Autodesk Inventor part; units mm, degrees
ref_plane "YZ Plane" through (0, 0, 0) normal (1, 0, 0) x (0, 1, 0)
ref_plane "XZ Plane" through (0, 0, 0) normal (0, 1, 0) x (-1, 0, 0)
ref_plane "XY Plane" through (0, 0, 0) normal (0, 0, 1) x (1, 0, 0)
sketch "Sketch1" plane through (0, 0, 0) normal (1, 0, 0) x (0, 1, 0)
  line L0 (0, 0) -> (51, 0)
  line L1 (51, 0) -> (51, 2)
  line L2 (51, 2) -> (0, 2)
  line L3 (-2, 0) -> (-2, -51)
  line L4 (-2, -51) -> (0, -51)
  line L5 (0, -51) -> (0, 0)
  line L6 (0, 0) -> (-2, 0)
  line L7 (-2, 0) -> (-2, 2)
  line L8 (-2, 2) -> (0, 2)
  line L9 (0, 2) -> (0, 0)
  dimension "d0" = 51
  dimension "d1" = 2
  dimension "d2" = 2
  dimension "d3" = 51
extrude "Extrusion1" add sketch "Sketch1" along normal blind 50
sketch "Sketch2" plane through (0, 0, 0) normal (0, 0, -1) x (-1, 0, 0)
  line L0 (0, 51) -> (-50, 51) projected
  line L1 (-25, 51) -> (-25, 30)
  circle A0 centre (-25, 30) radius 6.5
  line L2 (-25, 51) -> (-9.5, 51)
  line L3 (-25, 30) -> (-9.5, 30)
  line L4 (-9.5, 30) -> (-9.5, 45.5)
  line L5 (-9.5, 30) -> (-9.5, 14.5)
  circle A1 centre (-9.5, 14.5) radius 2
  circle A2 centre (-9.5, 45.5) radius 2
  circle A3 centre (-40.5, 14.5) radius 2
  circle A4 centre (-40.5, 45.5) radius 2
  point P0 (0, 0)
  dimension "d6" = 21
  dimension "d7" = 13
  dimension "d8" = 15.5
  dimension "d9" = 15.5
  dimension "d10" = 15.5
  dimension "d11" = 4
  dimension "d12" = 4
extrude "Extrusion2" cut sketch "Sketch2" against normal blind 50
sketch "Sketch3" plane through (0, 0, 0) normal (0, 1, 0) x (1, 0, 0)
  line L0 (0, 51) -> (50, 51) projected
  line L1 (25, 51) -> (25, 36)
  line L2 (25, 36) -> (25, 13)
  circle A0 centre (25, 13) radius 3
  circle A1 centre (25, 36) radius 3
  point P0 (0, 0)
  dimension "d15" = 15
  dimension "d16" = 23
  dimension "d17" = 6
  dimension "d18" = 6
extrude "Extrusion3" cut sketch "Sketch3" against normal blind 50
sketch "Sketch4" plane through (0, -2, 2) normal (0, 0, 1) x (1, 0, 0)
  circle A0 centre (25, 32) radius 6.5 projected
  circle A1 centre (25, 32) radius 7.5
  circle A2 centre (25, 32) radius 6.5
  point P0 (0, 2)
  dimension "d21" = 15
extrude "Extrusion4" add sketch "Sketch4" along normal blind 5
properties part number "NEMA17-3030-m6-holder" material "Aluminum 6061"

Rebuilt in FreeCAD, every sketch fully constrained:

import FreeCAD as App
import Part
import Sketcher
from FreeCAD import Vector


def add_polygon(sketch, points):
    """Adds a closed chain of lines whose ends are joined by coincident constraints."""
    first, n = sketch.GeometryCount, len(points)
    for a, b in zip(points, points[1:] + points[:1]):
        sketch.addGeometry(Part.LineSegment(App.Vector(*a, 0), App.Vector(*b, 0)), False)
    for i in range(n):
        sketch.addConstraint(Sketcher.Constraint("Coincident", first + i, 2, first + (i + 1) % n, 1))

doc = App.newDocument("Part")
body = doc.addObject("PartDesign::Body", "Body")

sketch1 = body.newObject("Sketcher::SketchObject", "Sketch")
sketch1.AttachmentSupport = (doc.getObject("YZ_Plane"), [""])
sketch1.MapMode = "FlatFace"
add_polygon(sketch1, [(51, 2), (-2, 2), (-2, -51), (0, -51), (0, 0), (51, 0)])
sketch1.addConstraint(Sketcher.Constraint("Horizontal", 0))
sketch1.addConstraint(Sketcher.Constraint("Vertical", 1))
sketch1.addConstraint(Sketcher.Constraint("Horizontal", 2))
sketch1.addConstraint(Sketcher.Constraint("Vertical", 3))
sketch1.addConstraint(Sketcher.Constraint("Horizontal", 4))
sketch1.addConstraint(Sketcher.Constraint("Vertical", 5))
sketch1.addConstraint(Sketcher.Constraint("Coincident", 3, 2, -1, 1))
sketch1.addConstraint(Sketcher.Constraint("Equal", 0, 1))
sketch1.addConstraint(Sketcher.Constraint("Equal", 4, 3))
sketch1.addConstraint(Sketcher.Constraint("DistanceX", 2, 1, 2, 2, 2.0))
sketch1.addConstraint(Sketcher.Constraint("DistanceX", 4, 1, 4, 2, 51.0))
pad1 = body.newObject("PartDesign::Pad", "Pad")
pad1.Profile = sketch1
pad1.Length = 50

sketch2 = body.newObject("Sketcher::SketchObject", "Sketch001")
sketch2.AttachmentSupport = (doc.getObject("XY_Plane"), [""])
sketch2.MapMode = "FlatFace"
sketch2.addGeometry(Part.Circle(Vector(25, 30, 0), Vector(0, 0, 1), 6.5), False)
sketch2.addGeometry(Part.Circle(Vector(9.5, 45.5, 0), Vector(0, 0, 1), 2), False)
sketch2.addGeometry(Part.Circle(Vector(9.5, 14.5, 0), Vector(0, 0, 1), 2), False)
sketch2.addGeometry(Part.Circle(Vector(40.5, 14.5, 0), Vector(0, 0, 1), 2), False)
sketch2.addGeometry(Part.Circle(Vector(40.5, 45.5, 0), Vector(0, 0, 1), 2), False)
sketch2.addConstraint(Sketcher.Constraint("Equal", 1, 2))
sketch2.addConstraint(Sketcher.Constraint("Equal", 2, 3))
sketch2.addConstraint(Sketcher.Constraint("Equal", 3, 4))
sketch2.addConstraint(Sketcher.Constraint("Horizontal", 2, 3, 3, 3))
sketch2.addConstraint(Sketcher.Constraint("Horizontal", 1, 3, 4, 3))
sketch2.addConstraint(Sketcher.Constraint("Vertical", 1, 3, 2, 3))
sketch2.addConstraint(Sketcher.Constraint("Vertical", 3, 3, 4, 3))
sketch2.addConstraint(Sketcher.Constraint("Diameter", 0, 13.0))
sketch2.addConstraint(Sketcher.Constraint("Diameter", 1, 4.0))
sketch2.addConstraint(Sketcher.Constraint("DistanceX", 1, 3, 0, 3, 15.5))
sketch2.addConstraint(Sketcher.Constraint("DistanceY", 0, 3, 1, 3, 15.5))
sketch2.addConstraint(Sketcher.Constraint("DistanceY", 2, 3, 0, 3, 15.5))
sketch2.addConstraint(Sketcher.Constraint("DistanceX", 0, 3, 3, 3, 15.5))
sketch2.addConstraint(Sketcher.Constraint("DistanceX", -1, 1, 0, 3, 25.0))
sketch2.addConstraint(Sketcher.Constraint("DistanceY", -1, 1, 0, 3, 30.0))
pocket1 = body.newObject("PartDesign::Pocket", "Pocket")
pocket1.Profile = sketch2
pocket1.Length = 50
pocket1.Reversed = True

sketch3 = body.newObject("Sketcher::SketchObject", "Sketch002")
sketch3.AttachmentSupport = (doc.getObject("XZ_Plane"), [""])
sketch3.MapMode = "FlatFace"
sketch3.addGeometry(Part.Circle(Vector(25, -36, 0), Vector(0, 0, 1), 3), False)
sketch3.addGeometry(Part.Circle(Vector(25, -13, 0), Vector(0, 0, 1), 3), False)
sketch3.addConstraint(Sketcher.Constraint("Equal", 0, 1))
sketch3.addConstraint(Sketcher.Constraint("Vertical", 0, 3, 1, 3))
sketch3.addConstraint(Sketcher.Constraint("Diameter", 0, 6.0))
sketch3.addConstraint(Sketcher.Constraint("DistanceY", 0, 3, 1, 3, 23.0))
sketch3.addConstraint(Sketcher.Constraint("DistanceX", -1, 1, 0, 3, 25.0))
sketch3.addConstraint(Sketcher.Constraint("DistanceY", 0, 3, -1, 1, 36.0))
pocket2 = body.newObject("PartDesign::Pocket", "Pocket001")
pocket2.Profile = sketch3
pocket2.Length = 50
pocket2.Reversed = True

sketch4 = body.newObject("Sketcher::SketchObject", "Sketch003")
sketch4.AttachmentSupport = (doc.getObject("XY_Plane"), [""])
sketch4.MapMode = "FlatFace"
sketch4.AttachmentOffset = App.Placement(Vector(0, 0, 2), App.Rotation())
sketch4.addGeometry(Part.Circle(Vector(25, 30, 0), Vector(0, 0, 1), 8), False)
sketch4.addGeometry(Part.Circle(Vector(25, 30, 0), Vector(0, 0, 1), 6), False)
sketch4.addConstraint(Sketcher.Constraint("Coincident", 1, 3, 0, 3))
sketch4.addConstraint(Sketcher.Constraint("Diameter", 0, 15.0))
sketch4.addConstraint(Sketcher.Constraint("Diameter", 1, 13.0))
sketch4.addConstraint(Sketcher.Constraint("DistanceX", -1, 1, 0, 3, 25.0))
sketch4.addConstraint(Sketcher.Constraint("DistanceY", -1, 1, 0, 3, 30.0))
pad2 = body.newObject("PartDesign::Pad", "Pad001")
pad2.Profile = sketch4
pad2.Length = 5

doc.recompute()
